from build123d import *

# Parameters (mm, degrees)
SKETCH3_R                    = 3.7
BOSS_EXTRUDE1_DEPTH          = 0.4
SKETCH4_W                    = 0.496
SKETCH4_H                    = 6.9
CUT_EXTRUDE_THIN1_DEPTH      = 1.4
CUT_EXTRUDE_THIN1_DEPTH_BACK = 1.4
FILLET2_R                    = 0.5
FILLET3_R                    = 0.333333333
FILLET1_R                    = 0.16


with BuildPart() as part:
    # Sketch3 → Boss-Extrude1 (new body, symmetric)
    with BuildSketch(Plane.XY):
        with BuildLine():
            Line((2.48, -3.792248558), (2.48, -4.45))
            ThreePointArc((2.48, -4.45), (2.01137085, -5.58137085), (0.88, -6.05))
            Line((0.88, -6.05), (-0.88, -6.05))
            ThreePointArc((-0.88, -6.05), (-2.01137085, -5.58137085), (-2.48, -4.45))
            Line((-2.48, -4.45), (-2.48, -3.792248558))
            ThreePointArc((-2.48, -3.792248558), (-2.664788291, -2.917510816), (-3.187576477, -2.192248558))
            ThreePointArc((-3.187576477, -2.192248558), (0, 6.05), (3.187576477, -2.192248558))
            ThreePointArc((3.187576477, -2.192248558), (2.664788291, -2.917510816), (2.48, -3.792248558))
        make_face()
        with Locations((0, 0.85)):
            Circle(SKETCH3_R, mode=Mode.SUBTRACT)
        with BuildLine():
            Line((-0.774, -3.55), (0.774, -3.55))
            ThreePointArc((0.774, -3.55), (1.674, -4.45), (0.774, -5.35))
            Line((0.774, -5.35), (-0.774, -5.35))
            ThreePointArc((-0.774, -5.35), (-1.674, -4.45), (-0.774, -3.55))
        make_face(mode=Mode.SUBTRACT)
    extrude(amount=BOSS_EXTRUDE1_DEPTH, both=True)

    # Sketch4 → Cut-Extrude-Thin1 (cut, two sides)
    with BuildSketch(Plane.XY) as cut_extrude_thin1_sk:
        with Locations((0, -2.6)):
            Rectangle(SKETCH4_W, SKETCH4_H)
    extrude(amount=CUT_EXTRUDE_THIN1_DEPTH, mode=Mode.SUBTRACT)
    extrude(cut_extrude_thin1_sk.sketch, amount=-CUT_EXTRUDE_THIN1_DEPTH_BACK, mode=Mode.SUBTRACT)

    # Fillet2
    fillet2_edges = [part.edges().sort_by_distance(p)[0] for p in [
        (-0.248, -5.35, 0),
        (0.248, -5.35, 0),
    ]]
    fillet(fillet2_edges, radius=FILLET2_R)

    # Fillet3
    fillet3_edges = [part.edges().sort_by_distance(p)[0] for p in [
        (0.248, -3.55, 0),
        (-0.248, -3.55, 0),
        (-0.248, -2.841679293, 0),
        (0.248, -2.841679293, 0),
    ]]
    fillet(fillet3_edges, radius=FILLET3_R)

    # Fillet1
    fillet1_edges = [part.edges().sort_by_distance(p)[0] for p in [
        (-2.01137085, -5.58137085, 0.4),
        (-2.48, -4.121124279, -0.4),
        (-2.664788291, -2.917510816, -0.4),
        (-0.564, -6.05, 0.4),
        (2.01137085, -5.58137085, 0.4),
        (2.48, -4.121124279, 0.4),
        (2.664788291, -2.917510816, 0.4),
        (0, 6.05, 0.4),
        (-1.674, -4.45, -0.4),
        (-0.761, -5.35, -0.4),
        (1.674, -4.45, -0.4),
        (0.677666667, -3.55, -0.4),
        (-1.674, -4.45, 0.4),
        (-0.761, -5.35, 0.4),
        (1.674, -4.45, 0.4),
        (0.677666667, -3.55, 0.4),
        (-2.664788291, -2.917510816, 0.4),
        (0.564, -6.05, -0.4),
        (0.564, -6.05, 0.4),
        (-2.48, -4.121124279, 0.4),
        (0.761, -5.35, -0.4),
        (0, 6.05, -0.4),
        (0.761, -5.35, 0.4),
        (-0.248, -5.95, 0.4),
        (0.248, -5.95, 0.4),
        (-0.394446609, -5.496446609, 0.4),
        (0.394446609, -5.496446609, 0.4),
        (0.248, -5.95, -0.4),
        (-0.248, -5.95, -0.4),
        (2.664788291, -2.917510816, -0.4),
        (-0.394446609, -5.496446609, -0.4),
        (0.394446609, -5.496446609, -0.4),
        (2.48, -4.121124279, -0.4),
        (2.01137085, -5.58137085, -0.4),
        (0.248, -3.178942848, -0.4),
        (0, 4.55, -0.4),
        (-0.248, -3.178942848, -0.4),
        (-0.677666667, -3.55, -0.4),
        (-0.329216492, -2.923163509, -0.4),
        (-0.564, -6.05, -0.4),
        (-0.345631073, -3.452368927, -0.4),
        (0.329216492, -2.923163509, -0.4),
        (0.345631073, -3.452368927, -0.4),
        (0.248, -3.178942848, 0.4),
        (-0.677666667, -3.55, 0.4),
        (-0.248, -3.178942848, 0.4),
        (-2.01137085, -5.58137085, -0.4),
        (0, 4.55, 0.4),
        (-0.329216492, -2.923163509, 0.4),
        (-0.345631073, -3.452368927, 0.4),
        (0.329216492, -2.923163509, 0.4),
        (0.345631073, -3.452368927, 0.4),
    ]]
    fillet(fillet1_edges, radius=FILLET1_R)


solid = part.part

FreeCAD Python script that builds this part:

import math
import FreeCAD as App
import Part
import Sketcher

V = App.Vector
Q = App.Units.Quantity


def edges_at(feature, points):
    """Names of the edges that pass closest to the given points."""
    edges = feature.Shape.Edges
    near = lambda p: min(range(len(edges)), key=lambda i: edges[i].distToShape(Part.Vertex(*p))[0])
    return sorted({f"Edge{near(p) + 1}" for p in points})

doc = App.newDocument("Part")
body = doc.addObject("PartDesign::Body", "Body")

# Sketch on XY plane
sketch1 = body.newObject("Sketcher::SketchObject", "Sketch")
sketch1.AttachmentSupport = (doc.getObject("XY_Plane"), [""])
sketch1.MapMode = "FlatFace"
sketch1.addGeometry([
    Part.LineSegment(V(2.5, -4.5, 0), V(2.5, -3.8, 0)),  # 0
    Part.ArcOfCircle(Part.Circle(V(4.6, -3.8, 0), V(0, 0, 1), 2.2), math.radians(132), math.radians(180)),  # 1
    Part.ArcOfCircle(Part.Circle(V(0, 1.3, 0), V(0, 0, 1), 4.7), math.radians(-48), math.radians(228)),  # 2
    Part.ArcOfCircle(Part.Circle(V(-4.6, -3.8, 0), V(0, 0, 1), 2.2), math.radians(0), math.radians(48)),  # 3
    Part.LineSegment(V(-2.5, -3.8, 0), V(-2.5, -4.5, 0)),  # 4
    Part.ArcOfCircle(Part.Circle(V(-0.9, -4.5, 0), V(0, 0, 1), 1.6), math.radians(180), math.radians(270)),  # 5
    Part.LineSegment(V(-0.9, -6, 0), V(0.9, -6, 0)),  # 6
    Part.ArcOfCircle(Part.Circle(V(0.9, -4.5, 0), V(0, 0, 1), 1.6), math.radians(-90), math.radians(0)),  # 7
    Part.LineSegment(V(-0.8, -3.5, 0), V(0.8, -3.5, 0)),  # 8
    Part.ArcOfCircle(Part.Circle(V(0.8, -4.5, 0), V(0, 0, 1), 0.9), math.radians(-90), math.radians(90)),  # 9
    Part.LineSegment(V(0.8, -5.3, 0), V(-0.8, -5.3, 0)),  # 10
    Part.ArcOfCircle(Part.Circle(V(-0.8, -4.5, 0), V(0, 0, 1), 0.9), math.radians(90), math.radians(270)),  # 11
    Part.Circle(V(0, 0.8, 0), V(0, 0, 1), 3.7),  # 12
], False)
sketch1.addConstraint([
    Sketcher.Constraint("Tangent", 0, 2, 1, 2),
    Sketcher.Constraint("Tangent", 1, 1, 2, 1),
    Sketcher.Constraint("Tangent", 2, 2, 3, 2),
    Sketcher.Constraint("Tangent", 3, 1, 4, 1),
    Sketcher.Constraint("Tangent", 4, 2, 5, 1),
    Sketcher.Constraint("Tangent", 5, 2, 6, 1),
    Sketcher.Constraint("Tangent", 6, 2, 7, 1),
    Sketcher.Constraint("Tangent", 7, 2, 0, 1),
    Sketcher.Constraint("Tangent", 8, 2, 9, 2),
    Sketcher.Constraint("Tangent", 9, 1, 10, 1),
    Sketcher.Constraint("Tangent", 10, 2, 11, 2),
    Sketcher.Constraint("Tangent", 11, 1, 8, 1),
    Sketcher.Constraint("Vertical", 0),
    Sketcher.Constraint("Vertical", 4),
    Sketcher.Constraint("Horizontal", 6),
    Sketcher.Constraint("Horizontal", 8),
    Sketcher.Constraint("Horizontal", 10),
    Sketcher.Constraint("Equal", 1, 3),
    Sketcher.Constraint("Equal", 5, 7),
    Sketcher.Constraint("Symmetric", 1, 3, 3, 3, -2),
    Sketcher.Constraint("PointOnObject", 12, 3, -2),
    Sketcher.Constraint("Horizontal", 7, 3, 9, 3),
    Sketcher.Constraint("Diameter", 12, Q("7.4 mm")),
    Sketcher.Constraint("Radius", 5, Q("1.6 mm")),
    Sketcher.Constraint("Radius", 9, Q("0.9 mm")),
    Sketcher.Constraint("DistanceX", 6, 1, 6, 2, Q("1.76 mm")),
    Sketcher.Constraint("Radius", 2, Q("4.7375 mm")),
    Sketcher.Constraint("DistanceY", 9, 3, 12, 3, Q("5.3 mm")),
    Sketcher.Constraint("DistanceY", 0, 2, 1, 1, Q("1.6 mm")),
    Sketcher.Constraint("DistanceX", 8, 1, 8, 2, Q("1.548 mm")),
    Sketcher.Constraint("DistanceY", 5, 3, -1, 1, Q("4.45 mm")),
    Sketcher.Constraint("DistanceX", -1, 1, 9, 3, Q("0.774 mm")),
    Sketcher.Constraint("DistanceY", 0, 1, 0, 2, Q("0.657751 mm")),
])
pad1 = body.newObject("PartDesign::Pad", "Pad")
pad1.Profile = sketch1
pad1.Length = 0.8
pad1.Midplane = True

# Sketch on XY plane
sketch2 = body.newObject("Sketcher::SketchObject", "Sketch001")
sketch2.AttachmentSupport = (doc.getObject("XY_Plane"), [""])
sketch2.MapMode = "FlatFace"
sketch2.addGeometry([
    Part.LineSegment(V(-0.25, 0.85, 0), V(-0.25, -6.05, 0)),
    Part.LineSegment(V(-0.25, -6.05, 0), V(0.25, -6.05, 0)),
    Part.LineSegment(V(0.25, -6.05, 0), V(0.25, 0.85, 0)),
    Part.LineSegment(V(0.25, 0.85, 0), V(-0.25, 0.85, 0)),
], False)
sketch2.addConstraint([
    Sketcher.Constraint("Coincident", 0, 2, 1, 1),
    Sketcher.Constraint("Coincident", 1, 2, 2, 1),
    Sketcher.Constraint("Coincident", 2, 2, 3, 1),
    Sketcher.Constraint("Coincident", 3, 2, 0, 1),
    Sketcher.Constraint("Vertical", 0),
    Sketcher.Constraint("Horizontal", 1),
    Sketcher.Constraint("Vertical", 2),
    Sketcher.Constraint("Horizontal", 3),
    Sketcher.Constraint("DistanceY", 0, 2, 0, 1, Q("6.9 mm")),
    Sketcher.Constraint("DistanceX", 1, 1, 1, 2, Q("0.496 mm")),
    Sketcher.Constraint("DistanceY", 0, 2, -1, 1, Q("6.05 mm")),
    Sketcher.Constraint("DistanceX", 0, 2, -1, 1, Q("0.248 mm")),
])
pocket1 = body.newObject("PartDesign::Pocket", "Pocket")
pocket1.Profile = sketch2
pocket1.Type = "ThroughAll"
pocket1.Midplane = True
doc.recompute()

fillet = body.newObject("PartDesign::Fillet", "Fillet")
fillet.Base = (pocket1, edges_at(pocket1, [(-0.248, -5.35, 0), (0.248, -5.35, 0)]))
fillet.Radius = 0.5
doc.recompute()

fillet2 = body.newObject("PartDesign::Fillet", "Fillet001")
fillet2.Base = (fillet, edges_at(fillet, [
    (0.248, -3.55, 0),
    (-0.248, -3.55, 0),
    (-0.248, -2.842, 0),
    (0.248, -2.842, 0),
]))
fillet2.Radius = 0.333333
doc.recompute()

fillet3 = body.newObject("PartDesign::Fillet", "Fillet002")
fillet3.Base = (fillet2, edges_at(fillet2, [
    (-2.011, -5.581, 0.4),
    (-2.48, -4.121, -0.4),
    (-2.665, -2.918, -0.4),
    (-0.564, -6.05, 0.4),
    (2.011, -5.581, 0.4),
    (2.48, -4.121, 0.4),
    (2.665, -2.918, 0.4),
    (0, 6.05, 0.4),
    (-1.674, -4.45, -0.4),
    (-0.761, -5.35, -0.4),
    (1.674, -4.45, -0.4),
    (0.678, -3.55, -0.4),
    (-1.674, -4.45, 0.4),
    (-0.761, -5.35, 0.4),
    (1.674, -4.45, 0.4),
    (0.678, -3.55, 0.4),
    (-2.665, -2.918, 0.4),
    (0.564, -6.05, -0.4),
    (0.564, -6.05, 0.4),
    (-2.48, -4.121, 0.4),
    (0.761, -5.35, -0.4),
    (0, 6.05, -0.4),
    (0.761, -5.35, 0.4),
    (-0.248, -5.95, 0.4),
    (0.248, -5.95, 0.4),
    (-0.394, -5.496, 0.4),
    (0.394, -5.496, 0.4),
    (0.248, -5.95, -0.4),
    (-0.248, -5.95, -0.4),
    (2.665, -2.918, -0.4),
    (-0.394, -5.496, -0.4),
    (0.394, -5.496, -0.4),
    (2.48, -4.121, -0.4),
    (2.011, -5.581, -0.4),
    (0.248, -3.179, -0.4),
    (0, 4.55, -0.4),
    (-0.248, -3.179, -0.4),
    (-0.678, -3.55, -0.4),
    (-0.329, -2.923, -0.4),
    (-0.564, -6.05, -0.4),
    (-0.346, -3.452, -0.4),
    (0.329, -2.923, -0.4),
    (0.346, -3.452, -0.4),
    (0.248, -3.179, 0.4),
    (-0.678, -3.55, 0.4),
    (-0.248, -3.179, 0.4),
    (-2.011, -5.581, -0.4),
    (0, 4.55, 0.4),
    (-0.329, -2.923, 0.4),
    (-0.346, -3.452, 0.4),
    (0.329, -2.923, 0.4),
    (0.346, -3.452, 0.4),
]))
fillet3.Radius = 0.16

doc.recompute()
